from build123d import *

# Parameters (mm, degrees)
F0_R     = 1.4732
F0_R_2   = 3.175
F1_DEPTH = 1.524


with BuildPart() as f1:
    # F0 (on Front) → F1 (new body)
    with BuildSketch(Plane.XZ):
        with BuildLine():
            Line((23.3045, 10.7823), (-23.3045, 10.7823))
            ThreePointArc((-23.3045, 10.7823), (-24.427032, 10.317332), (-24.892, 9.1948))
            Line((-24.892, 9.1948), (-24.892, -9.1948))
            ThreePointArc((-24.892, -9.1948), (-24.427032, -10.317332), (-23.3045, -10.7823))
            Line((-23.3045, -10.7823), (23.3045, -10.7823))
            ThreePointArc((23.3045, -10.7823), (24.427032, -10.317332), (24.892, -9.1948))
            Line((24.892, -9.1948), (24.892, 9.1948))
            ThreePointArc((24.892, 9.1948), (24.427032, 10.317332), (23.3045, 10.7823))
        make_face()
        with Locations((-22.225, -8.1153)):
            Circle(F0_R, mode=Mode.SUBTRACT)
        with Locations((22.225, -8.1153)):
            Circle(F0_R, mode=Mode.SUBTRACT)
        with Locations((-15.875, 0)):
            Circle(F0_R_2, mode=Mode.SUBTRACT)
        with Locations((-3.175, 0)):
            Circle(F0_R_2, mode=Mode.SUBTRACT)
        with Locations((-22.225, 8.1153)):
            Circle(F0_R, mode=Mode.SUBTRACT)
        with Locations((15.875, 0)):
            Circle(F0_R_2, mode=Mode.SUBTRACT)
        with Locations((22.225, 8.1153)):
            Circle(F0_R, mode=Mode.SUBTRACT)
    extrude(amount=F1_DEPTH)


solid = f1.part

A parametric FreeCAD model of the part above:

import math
import FreeCAD as App
import Part
import Sketcher
from FreeCAD import Vector
Q = App.Units.Quantity

doc = App.newDocument("Part")
body = doc.addObject("PartDesign::Body", "Body")

# Sketch on XZ plane
sketch1 = body.newObject("Sketcher::SketchObject", "Sketch")
sketch1.AttachmentSupport = (doc.getObject("XZ_Plane"), [""])
sketch1.MapMode = "FlatFace"
sketch1.addGeometry([
    Part.LineSegment(Vector(23.3045, 10.7823, 0), Vector(-23.3045, 10.7823, 0)),  # 0
    Part.ArcOfCircle(Part.Circle(Vector(-23.3045, 9.1948, 0), Vector(0, 0, 1), 1.5875), math.radians(90.000002), math.radians(179.999998)),  # 1
    Part.LineSegment(Vector(-24.892, 9.1948, 0), Vector(-24.892, -9.1948, 0)),  # 2
    Part.ArcOfCircle(Part.Circle(Vector(-23.3045, -9.1948, 0), Vector(0, 0, 1), 1.5875), math.radians(-179.999998), math.radians(-90.000002)),  # 3
    Part.LineSegment(Vector(-23.3045, -10.7823, 0), Vector(23.3045, -10.7823, 0)),  # 4
    Part.ArcOfCircle(Part.Circle(Vector(23.3045, -9.1948, 0), Vector(0, 0, 1), 1.5875), math.radians(-89.999998), math.radians(-0.000002)),  # 5
    Part.LineSegment(Vector(24.892, -9.1948, 0), Vector(24.892, 9.1948, 0)),  # 6
    Part.ArcOfCircle(Part.Circle(Vector(23.3045, 9.1948, 0), Vector(0, 0, 1), 1.5875), math.radians(0.000002), math.radians(89.999998)),  # 7
    Part.Circle(Vector(-22.225, -8.1153, 0), Vector(0, 0, 1), 1.4732),  # 8
    Part.Circle(Vector(22.225, -8.1153, 0), Vector(0, 0, 1), 1.4732),  # 9
    Part.Circle(Vector(-15.875, 0, 0), Vector(0, 0, 1), 3.175),  # 10
    Part.Circle(Vector(-3.175, 0, 0), Vector(0, 0, 1), 3.175),  # 11
    Part.Circle(Vector(-22.225, 8.1153, 0), Vector(0, 0, 1), 1.4732),  # 12
    Part.Circle(Vector(15.875, 0, 0), Vector(0, 0, 1), 3.175),  # 13
    Part.Circle(Vector(22.225, 8.1153, 0), Vector(0, 0, 1), 1.4732),  # 14
], False)
sketch1.addConstraint([
    Sketcher.Constraint("Tangent", 0, 2, 1, 1),
    Sketcher.Constraint("Tangent", 1, 2, 2, 1),
    Sketcher.Constraint("Tangent", 2, 2, 3, 1),
    Sketcher.Constraint("Tangent", 3, 2, 4, 1),
    Sketcher.Constraint("Tangent", 4, 2, 5, 1),
    Sketcher.Constraint("Tangent", 5, 2, 6, 1),
    Sketcher.Constraint("Tangent", 6, 2, 7, 1),
    Sketcher.Constraint("Tangent", 7, 2, 0, 1),
    Sketcher.Constraint("Horizontal", 0),
    Sketcher.Constraint("Vertical", 2),
    Sketcher.Constraint("Horizontal", 4),
    Sketcher.Constraint("Vertical", 6),
    Sketcher.Constraint("Equal", 1, 3),
    Sketcher.Constraint("Equal", 3, 5),
    Sketcher.Constraint("Equal", 5, 7),
    Sketcher.Constraint("Equal", 8, 9),
    Sketcher.Constraint("Equal", 10, 11),
    Sketcher.Constraint("Equal", 9, 12),
    Sketcher.Constraint("Equal", 11, 13),
    Sketcher.Constraint("Equal", 12, 14),
    Sketcher.Constraint("Symmetric", 1, 3, 5, 3, -1, 1),
    Sketcher.Constraint("Symmetric", 9, 3, 12, 3, -1, 1),
    Sketcher.Constraint("Symmetric", 10, 3, 13, 3, -1, 1),
    Sketcher.Constraint("Symmetric", 8, 3, 14, 3, -1, 1),
    Sketcher.Constraint("Symmetric", 8, 3, 9, 3, -2),
    Sketcher.Constraint("PointOnObject", 10, 3, -1),
    Sketcher.Constraint("PointOnObject", 11, 3, -1),
    Sketcher.Constraint("Diameter", 10, Q("0.25 in")),
    Sketcher.Constraint("Diameter", 8, Q("0.116 in")),
    Sketcher.Constraint("Radius", 1, Q("0.0625 in")),
    Sketcher.Constraint("DistanceX", 11, 3, 9, 3, Q("1 in")),
    Sketcher.Constraint("DistanceX", 10, 3, 9, 3, Q("1.5 in")),
    Sketcher.Constraint("DistanceX", 0, 2, 0, 1, Q("1.835 in")),
    Sketcher.Constraint("DistanceY", 2, 2, 2, 1, Q("0.724 in")),
    Sketcher.Constraint("DistanceX", 8, 3, 9, 3, Q("1.75 in")),
    Sketcher.Constraint("DistanceY", 8, 3, 12, 3, Q("0.639 in")),
])
pad1 = body.newObject("PartDesign::Pad", "Pad")
pad1.Profile = sketch1
pad1.Length = Q("0.06 in")

doc.recompute()
